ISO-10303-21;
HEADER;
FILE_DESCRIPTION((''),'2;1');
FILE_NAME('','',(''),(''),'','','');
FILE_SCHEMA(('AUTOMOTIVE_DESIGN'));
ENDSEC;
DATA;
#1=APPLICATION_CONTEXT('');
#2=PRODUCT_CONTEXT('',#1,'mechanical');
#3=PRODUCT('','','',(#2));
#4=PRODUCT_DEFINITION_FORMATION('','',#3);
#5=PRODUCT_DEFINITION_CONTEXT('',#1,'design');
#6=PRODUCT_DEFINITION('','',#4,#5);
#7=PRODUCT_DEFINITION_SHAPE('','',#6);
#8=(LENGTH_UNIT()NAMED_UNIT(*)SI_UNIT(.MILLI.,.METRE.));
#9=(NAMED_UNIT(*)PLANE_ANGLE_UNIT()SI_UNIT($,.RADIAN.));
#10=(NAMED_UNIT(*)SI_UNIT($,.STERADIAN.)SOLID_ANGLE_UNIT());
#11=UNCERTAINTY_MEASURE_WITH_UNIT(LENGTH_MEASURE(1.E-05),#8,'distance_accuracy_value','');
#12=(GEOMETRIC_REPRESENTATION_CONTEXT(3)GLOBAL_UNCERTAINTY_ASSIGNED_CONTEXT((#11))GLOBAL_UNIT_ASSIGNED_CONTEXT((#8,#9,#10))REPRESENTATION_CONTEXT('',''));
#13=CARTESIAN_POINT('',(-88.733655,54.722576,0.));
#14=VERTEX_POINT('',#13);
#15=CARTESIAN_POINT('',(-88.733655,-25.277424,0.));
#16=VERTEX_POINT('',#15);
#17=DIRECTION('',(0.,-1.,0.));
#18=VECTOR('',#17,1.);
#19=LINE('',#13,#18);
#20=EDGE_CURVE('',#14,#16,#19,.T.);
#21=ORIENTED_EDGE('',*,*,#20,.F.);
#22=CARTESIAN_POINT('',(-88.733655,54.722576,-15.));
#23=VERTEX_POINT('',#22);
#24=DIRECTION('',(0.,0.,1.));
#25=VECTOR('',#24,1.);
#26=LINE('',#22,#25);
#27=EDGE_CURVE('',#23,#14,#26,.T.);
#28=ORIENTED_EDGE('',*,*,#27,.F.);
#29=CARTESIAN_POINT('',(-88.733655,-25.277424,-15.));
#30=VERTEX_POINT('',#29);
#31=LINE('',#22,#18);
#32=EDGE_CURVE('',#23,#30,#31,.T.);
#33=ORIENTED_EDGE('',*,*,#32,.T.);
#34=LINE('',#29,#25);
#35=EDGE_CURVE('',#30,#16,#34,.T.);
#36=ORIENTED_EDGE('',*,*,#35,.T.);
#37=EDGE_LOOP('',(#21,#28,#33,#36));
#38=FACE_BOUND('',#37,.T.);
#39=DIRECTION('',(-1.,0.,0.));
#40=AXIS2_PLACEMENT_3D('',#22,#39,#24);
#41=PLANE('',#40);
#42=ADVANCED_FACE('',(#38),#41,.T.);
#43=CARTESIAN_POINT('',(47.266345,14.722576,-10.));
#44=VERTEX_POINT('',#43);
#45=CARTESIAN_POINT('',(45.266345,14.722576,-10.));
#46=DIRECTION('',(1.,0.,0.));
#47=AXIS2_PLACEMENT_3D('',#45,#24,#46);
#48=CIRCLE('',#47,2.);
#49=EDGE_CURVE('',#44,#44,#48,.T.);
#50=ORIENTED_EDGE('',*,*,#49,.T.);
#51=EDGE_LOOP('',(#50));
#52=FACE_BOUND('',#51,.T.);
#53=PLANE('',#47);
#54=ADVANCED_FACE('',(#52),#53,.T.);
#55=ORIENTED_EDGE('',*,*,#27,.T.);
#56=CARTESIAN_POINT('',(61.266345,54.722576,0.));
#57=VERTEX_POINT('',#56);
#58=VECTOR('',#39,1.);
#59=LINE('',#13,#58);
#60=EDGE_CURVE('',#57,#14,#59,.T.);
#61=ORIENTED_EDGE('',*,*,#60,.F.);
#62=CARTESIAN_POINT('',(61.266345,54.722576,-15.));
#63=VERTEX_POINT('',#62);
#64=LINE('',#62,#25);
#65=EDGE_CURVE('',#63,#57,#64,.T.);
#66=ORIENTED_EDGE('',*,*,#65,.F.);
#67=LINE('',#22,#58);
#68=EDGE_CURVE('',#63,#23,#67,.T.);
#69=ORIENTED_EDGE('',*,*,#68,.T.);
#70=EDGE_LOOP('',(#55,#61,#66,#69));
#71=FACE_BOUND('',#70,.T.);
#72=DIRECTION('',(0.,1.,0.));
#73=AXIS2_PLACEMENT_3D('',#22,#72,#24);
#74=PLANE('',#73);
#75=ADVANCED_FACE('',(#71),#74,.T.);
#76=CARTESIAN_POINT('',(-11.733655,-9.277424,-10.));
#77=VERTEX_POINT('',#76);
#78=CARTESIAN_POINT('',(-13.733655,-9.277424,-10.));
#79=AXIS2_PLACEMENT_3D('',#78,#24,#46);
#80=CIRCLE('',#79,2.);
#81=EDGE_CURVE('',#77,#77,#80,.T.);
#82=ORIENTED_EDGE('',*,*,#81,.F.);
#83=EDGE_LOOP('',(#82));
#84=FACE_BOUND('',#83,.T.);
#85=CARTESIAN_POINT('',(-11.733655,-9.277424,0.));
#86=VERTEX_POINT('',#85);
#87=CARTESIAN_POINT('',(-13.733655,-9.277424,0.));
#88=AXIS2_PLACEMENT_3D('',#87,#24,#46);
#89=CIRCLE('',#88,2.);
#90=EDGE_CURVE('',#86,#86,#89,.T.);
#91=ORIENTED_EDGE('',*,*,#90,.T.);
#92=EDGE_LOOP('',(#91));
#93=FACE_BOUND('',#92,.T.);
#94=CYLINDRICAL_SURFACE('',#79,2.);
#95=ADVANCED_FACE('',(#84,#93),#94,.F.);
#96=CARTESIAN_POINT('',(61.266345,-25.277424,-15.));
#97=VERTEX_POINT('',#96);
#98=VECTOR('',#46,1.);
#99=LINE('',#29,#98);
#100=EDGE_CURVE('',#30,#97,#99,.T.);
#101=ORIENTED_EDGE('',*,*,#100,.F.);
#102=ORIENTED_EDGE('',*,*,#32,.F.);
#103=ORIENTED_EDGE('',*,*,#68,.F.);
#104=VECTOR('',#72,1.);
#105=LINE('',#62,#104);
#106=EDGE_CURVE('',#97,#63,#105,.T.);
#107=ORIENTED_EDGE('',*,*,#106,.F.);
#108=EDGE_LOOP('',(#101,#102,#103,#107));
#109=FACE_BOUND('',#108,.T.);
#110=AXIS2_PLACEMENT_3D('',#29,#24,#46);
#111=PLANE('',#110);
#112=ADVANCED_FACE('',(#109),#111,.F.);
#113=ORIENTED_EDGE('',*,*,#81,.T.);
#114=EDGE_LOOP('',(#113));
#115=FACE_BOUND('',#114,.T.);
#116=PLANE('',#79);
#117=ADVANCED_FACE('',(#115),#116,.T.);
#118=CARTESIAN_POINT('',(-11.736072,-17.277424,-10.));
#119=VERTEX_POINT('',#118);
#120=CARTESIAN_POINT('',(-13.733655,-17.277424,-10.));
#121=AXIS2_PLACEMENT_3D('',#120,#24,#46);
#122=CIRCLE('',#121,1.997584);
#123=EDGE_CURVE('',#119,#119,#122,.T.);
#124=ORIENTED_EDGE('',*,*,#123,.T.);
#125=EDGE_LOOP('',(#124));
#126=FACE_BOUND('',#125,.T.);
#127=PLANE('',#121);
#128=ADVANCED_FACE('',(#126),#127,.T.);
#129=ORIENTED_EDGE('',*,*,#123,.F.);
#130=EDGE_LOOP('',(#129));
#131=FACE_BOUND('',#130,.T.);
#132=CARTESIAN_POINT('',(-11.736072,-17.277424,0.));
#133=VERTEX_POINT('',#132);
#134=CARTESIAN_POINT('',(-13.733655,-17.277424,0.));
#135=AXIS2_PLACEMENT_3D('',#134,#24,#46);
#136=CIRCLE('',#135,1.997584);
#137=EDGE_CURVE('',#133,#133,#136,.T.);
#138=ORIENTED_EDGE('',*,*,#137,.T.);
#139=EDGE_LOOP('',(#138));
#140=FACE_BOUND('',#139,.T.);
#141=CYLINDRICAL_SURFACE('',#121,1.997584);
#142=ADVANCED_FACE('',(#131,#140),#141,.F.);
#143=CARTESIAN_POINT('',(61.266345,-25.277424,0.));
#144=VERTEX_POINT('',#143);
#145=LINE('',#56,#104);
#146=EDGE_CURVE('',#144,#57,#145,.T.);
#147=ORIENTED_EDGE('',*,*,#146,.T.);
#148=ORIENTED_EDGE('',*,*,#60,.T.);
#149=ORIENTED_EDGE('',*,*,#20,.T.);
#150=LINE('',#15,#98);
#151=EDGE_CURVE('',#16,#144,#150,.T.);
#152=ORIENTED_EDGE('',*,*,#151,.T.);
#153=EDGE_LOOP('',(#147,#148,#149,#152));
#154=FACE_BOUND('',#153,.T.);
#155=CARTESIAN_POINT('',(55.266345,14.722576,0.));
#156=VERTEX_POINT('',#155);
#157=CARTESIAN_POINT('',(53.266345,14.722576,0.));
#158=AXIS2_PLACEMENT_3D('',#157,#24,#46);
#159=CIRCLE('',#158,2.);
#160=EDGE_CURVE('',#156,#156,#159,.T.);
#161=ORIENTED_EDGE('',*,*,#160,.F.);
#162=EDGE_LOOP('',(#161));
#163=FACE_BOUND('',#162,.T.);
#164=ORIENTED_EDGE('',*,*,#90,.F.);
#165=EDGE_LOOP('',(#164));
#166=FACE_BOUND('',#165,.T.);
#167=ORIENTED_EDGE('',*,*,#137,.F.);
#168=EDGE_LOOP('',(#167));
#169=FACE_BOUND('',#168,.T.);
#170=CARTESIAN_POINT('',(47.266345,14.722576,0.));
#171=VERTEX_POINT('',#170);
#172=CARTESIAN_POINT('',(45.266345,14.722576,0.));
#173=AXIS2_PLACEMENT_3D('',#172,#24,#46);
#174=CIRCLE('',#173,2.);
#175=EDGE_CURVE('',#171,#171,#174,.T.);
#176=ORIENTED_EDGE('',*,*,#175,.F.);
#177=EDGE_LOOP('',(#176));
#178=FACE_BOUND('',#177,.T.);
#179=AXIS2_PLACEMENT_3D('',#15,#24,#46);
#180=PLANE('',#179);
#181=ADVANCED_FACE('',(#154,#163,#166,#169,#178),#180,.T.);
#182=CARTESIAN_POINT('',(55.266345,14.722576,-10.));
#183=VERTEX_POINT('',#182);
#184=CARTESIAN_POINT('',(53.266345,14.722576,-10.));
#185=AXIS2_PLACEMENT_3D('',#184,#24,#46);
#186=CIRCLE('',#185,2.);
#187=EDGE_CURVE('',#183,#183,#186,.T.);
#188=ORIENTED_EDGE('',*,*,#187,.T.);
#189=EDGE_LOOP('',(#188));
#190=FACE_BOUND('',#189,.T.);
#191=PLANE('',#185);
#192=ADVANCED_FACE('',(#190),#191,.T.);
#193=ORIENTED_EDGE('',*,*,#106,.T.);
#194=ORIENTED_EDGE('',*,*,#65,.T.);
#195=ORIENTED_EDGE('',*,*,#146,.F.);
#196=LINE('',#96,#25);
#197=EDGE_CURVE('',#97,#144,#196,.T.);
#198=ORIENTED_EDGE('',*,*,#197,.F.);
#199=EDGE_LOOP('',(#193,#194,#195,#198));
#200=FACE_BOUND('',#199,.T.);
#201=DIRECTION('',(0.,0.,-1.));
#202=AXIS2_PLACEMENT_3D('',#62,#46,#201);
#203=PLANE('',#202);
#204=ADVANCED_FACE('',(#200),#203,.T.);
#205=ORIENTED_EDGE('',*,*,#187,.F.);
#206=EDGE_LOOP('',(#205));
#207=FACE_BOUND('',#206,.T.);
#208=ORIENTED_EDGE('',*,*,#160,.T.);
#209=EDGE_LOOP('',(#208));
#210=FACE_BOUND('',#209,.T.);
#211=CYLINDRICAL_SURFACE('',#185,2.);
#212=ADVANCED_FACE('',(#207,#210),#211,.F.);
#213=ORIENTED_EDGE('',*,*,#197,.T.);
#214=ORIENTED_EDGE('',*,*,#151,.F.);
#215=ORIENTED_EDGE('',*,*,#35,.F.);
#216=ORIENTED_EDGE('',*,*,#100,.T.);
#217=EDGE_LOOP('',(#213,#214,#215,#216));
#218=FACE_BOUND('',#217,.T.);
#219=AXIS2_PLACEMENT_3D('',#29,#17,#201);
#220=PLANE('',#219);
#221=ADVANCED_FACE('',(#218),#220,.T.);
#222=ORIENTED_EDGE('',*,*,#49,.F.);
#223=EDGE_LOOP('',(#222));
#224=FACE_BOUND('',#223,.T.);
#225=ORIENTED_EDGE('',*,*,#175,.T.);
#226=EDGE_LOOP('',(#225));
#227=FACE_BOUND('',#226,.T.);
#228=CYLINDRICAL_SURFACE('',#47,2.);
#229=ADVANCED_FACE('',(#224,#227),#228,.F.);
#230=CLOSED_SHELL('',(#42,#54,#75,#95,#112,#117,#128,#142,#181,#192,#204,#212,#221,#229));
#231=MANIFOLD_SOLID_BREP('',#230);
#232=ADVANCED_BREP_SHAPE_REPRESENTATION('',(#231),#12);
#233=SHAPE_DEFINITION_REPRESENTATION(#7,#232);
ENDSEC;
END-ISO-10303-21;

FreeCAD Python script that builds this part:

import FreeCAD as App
import Part
import Sketcher
Q = App.Units.Quantity

doc = App.newDocument("Part")
body = doc.addObject("PartDesign::Body", "Body")

# Sketch on XY plane
sketch1 = body.newObject("Sketcher::SketchObject", "Sketch")
sketch1.AttachmentSupport = (doc.getObject("XY_Plane"), [""])
sketch1.MapMode = "FlatFace"
sketch1.addGeometry(Part.LineSegment(App.Vector(-88.733655, 54.722576, 0), App.Vector(-88.733655, -25.277424, 0)), False)
sketch1.addGeometry(Part.LineSegment(App.Vector(-88.733655, -25.277424, 0), App.Vector(61.266345, -25.277424, 0)), False)
sketch1.addGeometry(Part.LineSegment(App.Vector(61.266345, -25.277424, 0), App.Vector(61.266345, 54.722576, 0)), False)
sketch1.addGeometry(Part.LineSegment(App.Vector(61.266345, 54.722576, 0), App.Vector(-88.733655, 54.722576, 0)), False)
sketch1.addConstraint(Sketcher.Constraint("Coincident", 0, 2, 1, 1))
sketch1.addConstraint(Sketcher.Constraint("Coincident", 1, 2, 2, 1))
sketch1.addConstraint(Sketcher.Constraint("Coincident", 2, 2, 3, 1))
sketch1.addConstraint(Sketcher.Constraint("Coincident", 3, 2, 0, 1))
sketch1.addConstraint(Sketcher.Constraint("Vertical", 0))
sketch1.addConstraint(Sketcher.Constraint("Horizontal", 1))
sketch1.addConstraint(Sketcher.Constraint("Vertical", 2))
sketch1.addConstraint(Sketcher.Constraint("Horizontal", 3))
sketch1.addConstraint(Sketcher.Constraint("DistanceX", 1, 1, 1, 2, Q("150 mm")))
sketch1.addConstraint(Sketcher.Constraint("DistanceY", 0, 2, 0, 1, Q("80 mm")))
sketch1.addConstraint(Sketcher.Constraint("DistanceX", 0, 2, -1, 1, Q("88.733655 mm")))
sketch1.addConstraint(Sketcher.Constraint("DistanceY", 0, 2, -1, 1, Q("25.277424 mm")))
pad1 = body.newObject("PartDesign::Pad", "Pad")
pad1.Profile = sketch1
pad1.Length = 15
pad1.Reversed = True

# Sketch on XY plane
sketch2 = body.newObject("Sketcher::SketchObject", "Sketch001")
sketch2.AttachmentSupport = (doc.getObject("XY_Plane"), [""])
sketch2.MapMode = "FlatFace"
sketch2.addGeometry(Part.Circle(App.Vector(-13.733655, -17.277424, 0), App.Vector(0, 0, 1), 1.997584), False)
sketch2.addGeometry(Part.Circle(App.Vector(-13.733655, -9.277424, 0), App.Vector(0, 0, 1), 2), False)
sketch2.addGeometry(Part.Circle(App.Vector(53.266345, 14.722576, 0), App.Vector(0, 0, 1), 2), False)
sketch2.addGeometry(Part.Circle(App.Vector(45.266345, 14.722576, 0), App.Vector(0, 0, 1), 2), False)
sketch2.addConstraint(Sketcher.Constraint("Equal", 1, 2))
sketch2.addConstraint(Sketcher.Constraint("Equal", 2, 3))
sketch2.addConstraint(Sketcher.Constraint("Horizontal", 2, 3, 3, 3))
sketch2.addConstraint(Sketcher.Constraint("Vertical", 0, 3, 1, 3))
sketch2.addConstraint(Sketcher.Constraint("Diameter", 1, Q("4 mm")))
sketch2.addConstraint(Sketcher.Constraint("DistanceY", 0, 3, 1, 3, Q("8 mm")))
sketch2.addConstraint(Sketcher.Constraint("DistanceX", 1, 3, 2, 3, Q("67 mm")))
sketch2.addConstraint(Sketcher.Constraint("DistanceY", 1, 3, 2, 3, Q("24 mm")))
sketch2.addConstraint(Sketcher.Constraint("DistanceX", 3, 3, 2, 3, Q("8 mm")))
sketch2.addConstraint(Sketcher.Constraint("Diameter", 0, Q("3.995167 mm")))
sketch2.addConstraint(Sketcher.Constraint("DistanceX", 0, 3, -1, 1, Q("13.733655 mm")))
sketch2.addConstraint(Sketcher.Constraint("DistanceY", 0, 3, -1, 1, Q("17.277424 mm")))
pocket1 = body.newObject("PartDesign::Pocket", "Pocket")
pocket1.Profile = sketch2
pocket1.Length = 10

doc.recompute()
